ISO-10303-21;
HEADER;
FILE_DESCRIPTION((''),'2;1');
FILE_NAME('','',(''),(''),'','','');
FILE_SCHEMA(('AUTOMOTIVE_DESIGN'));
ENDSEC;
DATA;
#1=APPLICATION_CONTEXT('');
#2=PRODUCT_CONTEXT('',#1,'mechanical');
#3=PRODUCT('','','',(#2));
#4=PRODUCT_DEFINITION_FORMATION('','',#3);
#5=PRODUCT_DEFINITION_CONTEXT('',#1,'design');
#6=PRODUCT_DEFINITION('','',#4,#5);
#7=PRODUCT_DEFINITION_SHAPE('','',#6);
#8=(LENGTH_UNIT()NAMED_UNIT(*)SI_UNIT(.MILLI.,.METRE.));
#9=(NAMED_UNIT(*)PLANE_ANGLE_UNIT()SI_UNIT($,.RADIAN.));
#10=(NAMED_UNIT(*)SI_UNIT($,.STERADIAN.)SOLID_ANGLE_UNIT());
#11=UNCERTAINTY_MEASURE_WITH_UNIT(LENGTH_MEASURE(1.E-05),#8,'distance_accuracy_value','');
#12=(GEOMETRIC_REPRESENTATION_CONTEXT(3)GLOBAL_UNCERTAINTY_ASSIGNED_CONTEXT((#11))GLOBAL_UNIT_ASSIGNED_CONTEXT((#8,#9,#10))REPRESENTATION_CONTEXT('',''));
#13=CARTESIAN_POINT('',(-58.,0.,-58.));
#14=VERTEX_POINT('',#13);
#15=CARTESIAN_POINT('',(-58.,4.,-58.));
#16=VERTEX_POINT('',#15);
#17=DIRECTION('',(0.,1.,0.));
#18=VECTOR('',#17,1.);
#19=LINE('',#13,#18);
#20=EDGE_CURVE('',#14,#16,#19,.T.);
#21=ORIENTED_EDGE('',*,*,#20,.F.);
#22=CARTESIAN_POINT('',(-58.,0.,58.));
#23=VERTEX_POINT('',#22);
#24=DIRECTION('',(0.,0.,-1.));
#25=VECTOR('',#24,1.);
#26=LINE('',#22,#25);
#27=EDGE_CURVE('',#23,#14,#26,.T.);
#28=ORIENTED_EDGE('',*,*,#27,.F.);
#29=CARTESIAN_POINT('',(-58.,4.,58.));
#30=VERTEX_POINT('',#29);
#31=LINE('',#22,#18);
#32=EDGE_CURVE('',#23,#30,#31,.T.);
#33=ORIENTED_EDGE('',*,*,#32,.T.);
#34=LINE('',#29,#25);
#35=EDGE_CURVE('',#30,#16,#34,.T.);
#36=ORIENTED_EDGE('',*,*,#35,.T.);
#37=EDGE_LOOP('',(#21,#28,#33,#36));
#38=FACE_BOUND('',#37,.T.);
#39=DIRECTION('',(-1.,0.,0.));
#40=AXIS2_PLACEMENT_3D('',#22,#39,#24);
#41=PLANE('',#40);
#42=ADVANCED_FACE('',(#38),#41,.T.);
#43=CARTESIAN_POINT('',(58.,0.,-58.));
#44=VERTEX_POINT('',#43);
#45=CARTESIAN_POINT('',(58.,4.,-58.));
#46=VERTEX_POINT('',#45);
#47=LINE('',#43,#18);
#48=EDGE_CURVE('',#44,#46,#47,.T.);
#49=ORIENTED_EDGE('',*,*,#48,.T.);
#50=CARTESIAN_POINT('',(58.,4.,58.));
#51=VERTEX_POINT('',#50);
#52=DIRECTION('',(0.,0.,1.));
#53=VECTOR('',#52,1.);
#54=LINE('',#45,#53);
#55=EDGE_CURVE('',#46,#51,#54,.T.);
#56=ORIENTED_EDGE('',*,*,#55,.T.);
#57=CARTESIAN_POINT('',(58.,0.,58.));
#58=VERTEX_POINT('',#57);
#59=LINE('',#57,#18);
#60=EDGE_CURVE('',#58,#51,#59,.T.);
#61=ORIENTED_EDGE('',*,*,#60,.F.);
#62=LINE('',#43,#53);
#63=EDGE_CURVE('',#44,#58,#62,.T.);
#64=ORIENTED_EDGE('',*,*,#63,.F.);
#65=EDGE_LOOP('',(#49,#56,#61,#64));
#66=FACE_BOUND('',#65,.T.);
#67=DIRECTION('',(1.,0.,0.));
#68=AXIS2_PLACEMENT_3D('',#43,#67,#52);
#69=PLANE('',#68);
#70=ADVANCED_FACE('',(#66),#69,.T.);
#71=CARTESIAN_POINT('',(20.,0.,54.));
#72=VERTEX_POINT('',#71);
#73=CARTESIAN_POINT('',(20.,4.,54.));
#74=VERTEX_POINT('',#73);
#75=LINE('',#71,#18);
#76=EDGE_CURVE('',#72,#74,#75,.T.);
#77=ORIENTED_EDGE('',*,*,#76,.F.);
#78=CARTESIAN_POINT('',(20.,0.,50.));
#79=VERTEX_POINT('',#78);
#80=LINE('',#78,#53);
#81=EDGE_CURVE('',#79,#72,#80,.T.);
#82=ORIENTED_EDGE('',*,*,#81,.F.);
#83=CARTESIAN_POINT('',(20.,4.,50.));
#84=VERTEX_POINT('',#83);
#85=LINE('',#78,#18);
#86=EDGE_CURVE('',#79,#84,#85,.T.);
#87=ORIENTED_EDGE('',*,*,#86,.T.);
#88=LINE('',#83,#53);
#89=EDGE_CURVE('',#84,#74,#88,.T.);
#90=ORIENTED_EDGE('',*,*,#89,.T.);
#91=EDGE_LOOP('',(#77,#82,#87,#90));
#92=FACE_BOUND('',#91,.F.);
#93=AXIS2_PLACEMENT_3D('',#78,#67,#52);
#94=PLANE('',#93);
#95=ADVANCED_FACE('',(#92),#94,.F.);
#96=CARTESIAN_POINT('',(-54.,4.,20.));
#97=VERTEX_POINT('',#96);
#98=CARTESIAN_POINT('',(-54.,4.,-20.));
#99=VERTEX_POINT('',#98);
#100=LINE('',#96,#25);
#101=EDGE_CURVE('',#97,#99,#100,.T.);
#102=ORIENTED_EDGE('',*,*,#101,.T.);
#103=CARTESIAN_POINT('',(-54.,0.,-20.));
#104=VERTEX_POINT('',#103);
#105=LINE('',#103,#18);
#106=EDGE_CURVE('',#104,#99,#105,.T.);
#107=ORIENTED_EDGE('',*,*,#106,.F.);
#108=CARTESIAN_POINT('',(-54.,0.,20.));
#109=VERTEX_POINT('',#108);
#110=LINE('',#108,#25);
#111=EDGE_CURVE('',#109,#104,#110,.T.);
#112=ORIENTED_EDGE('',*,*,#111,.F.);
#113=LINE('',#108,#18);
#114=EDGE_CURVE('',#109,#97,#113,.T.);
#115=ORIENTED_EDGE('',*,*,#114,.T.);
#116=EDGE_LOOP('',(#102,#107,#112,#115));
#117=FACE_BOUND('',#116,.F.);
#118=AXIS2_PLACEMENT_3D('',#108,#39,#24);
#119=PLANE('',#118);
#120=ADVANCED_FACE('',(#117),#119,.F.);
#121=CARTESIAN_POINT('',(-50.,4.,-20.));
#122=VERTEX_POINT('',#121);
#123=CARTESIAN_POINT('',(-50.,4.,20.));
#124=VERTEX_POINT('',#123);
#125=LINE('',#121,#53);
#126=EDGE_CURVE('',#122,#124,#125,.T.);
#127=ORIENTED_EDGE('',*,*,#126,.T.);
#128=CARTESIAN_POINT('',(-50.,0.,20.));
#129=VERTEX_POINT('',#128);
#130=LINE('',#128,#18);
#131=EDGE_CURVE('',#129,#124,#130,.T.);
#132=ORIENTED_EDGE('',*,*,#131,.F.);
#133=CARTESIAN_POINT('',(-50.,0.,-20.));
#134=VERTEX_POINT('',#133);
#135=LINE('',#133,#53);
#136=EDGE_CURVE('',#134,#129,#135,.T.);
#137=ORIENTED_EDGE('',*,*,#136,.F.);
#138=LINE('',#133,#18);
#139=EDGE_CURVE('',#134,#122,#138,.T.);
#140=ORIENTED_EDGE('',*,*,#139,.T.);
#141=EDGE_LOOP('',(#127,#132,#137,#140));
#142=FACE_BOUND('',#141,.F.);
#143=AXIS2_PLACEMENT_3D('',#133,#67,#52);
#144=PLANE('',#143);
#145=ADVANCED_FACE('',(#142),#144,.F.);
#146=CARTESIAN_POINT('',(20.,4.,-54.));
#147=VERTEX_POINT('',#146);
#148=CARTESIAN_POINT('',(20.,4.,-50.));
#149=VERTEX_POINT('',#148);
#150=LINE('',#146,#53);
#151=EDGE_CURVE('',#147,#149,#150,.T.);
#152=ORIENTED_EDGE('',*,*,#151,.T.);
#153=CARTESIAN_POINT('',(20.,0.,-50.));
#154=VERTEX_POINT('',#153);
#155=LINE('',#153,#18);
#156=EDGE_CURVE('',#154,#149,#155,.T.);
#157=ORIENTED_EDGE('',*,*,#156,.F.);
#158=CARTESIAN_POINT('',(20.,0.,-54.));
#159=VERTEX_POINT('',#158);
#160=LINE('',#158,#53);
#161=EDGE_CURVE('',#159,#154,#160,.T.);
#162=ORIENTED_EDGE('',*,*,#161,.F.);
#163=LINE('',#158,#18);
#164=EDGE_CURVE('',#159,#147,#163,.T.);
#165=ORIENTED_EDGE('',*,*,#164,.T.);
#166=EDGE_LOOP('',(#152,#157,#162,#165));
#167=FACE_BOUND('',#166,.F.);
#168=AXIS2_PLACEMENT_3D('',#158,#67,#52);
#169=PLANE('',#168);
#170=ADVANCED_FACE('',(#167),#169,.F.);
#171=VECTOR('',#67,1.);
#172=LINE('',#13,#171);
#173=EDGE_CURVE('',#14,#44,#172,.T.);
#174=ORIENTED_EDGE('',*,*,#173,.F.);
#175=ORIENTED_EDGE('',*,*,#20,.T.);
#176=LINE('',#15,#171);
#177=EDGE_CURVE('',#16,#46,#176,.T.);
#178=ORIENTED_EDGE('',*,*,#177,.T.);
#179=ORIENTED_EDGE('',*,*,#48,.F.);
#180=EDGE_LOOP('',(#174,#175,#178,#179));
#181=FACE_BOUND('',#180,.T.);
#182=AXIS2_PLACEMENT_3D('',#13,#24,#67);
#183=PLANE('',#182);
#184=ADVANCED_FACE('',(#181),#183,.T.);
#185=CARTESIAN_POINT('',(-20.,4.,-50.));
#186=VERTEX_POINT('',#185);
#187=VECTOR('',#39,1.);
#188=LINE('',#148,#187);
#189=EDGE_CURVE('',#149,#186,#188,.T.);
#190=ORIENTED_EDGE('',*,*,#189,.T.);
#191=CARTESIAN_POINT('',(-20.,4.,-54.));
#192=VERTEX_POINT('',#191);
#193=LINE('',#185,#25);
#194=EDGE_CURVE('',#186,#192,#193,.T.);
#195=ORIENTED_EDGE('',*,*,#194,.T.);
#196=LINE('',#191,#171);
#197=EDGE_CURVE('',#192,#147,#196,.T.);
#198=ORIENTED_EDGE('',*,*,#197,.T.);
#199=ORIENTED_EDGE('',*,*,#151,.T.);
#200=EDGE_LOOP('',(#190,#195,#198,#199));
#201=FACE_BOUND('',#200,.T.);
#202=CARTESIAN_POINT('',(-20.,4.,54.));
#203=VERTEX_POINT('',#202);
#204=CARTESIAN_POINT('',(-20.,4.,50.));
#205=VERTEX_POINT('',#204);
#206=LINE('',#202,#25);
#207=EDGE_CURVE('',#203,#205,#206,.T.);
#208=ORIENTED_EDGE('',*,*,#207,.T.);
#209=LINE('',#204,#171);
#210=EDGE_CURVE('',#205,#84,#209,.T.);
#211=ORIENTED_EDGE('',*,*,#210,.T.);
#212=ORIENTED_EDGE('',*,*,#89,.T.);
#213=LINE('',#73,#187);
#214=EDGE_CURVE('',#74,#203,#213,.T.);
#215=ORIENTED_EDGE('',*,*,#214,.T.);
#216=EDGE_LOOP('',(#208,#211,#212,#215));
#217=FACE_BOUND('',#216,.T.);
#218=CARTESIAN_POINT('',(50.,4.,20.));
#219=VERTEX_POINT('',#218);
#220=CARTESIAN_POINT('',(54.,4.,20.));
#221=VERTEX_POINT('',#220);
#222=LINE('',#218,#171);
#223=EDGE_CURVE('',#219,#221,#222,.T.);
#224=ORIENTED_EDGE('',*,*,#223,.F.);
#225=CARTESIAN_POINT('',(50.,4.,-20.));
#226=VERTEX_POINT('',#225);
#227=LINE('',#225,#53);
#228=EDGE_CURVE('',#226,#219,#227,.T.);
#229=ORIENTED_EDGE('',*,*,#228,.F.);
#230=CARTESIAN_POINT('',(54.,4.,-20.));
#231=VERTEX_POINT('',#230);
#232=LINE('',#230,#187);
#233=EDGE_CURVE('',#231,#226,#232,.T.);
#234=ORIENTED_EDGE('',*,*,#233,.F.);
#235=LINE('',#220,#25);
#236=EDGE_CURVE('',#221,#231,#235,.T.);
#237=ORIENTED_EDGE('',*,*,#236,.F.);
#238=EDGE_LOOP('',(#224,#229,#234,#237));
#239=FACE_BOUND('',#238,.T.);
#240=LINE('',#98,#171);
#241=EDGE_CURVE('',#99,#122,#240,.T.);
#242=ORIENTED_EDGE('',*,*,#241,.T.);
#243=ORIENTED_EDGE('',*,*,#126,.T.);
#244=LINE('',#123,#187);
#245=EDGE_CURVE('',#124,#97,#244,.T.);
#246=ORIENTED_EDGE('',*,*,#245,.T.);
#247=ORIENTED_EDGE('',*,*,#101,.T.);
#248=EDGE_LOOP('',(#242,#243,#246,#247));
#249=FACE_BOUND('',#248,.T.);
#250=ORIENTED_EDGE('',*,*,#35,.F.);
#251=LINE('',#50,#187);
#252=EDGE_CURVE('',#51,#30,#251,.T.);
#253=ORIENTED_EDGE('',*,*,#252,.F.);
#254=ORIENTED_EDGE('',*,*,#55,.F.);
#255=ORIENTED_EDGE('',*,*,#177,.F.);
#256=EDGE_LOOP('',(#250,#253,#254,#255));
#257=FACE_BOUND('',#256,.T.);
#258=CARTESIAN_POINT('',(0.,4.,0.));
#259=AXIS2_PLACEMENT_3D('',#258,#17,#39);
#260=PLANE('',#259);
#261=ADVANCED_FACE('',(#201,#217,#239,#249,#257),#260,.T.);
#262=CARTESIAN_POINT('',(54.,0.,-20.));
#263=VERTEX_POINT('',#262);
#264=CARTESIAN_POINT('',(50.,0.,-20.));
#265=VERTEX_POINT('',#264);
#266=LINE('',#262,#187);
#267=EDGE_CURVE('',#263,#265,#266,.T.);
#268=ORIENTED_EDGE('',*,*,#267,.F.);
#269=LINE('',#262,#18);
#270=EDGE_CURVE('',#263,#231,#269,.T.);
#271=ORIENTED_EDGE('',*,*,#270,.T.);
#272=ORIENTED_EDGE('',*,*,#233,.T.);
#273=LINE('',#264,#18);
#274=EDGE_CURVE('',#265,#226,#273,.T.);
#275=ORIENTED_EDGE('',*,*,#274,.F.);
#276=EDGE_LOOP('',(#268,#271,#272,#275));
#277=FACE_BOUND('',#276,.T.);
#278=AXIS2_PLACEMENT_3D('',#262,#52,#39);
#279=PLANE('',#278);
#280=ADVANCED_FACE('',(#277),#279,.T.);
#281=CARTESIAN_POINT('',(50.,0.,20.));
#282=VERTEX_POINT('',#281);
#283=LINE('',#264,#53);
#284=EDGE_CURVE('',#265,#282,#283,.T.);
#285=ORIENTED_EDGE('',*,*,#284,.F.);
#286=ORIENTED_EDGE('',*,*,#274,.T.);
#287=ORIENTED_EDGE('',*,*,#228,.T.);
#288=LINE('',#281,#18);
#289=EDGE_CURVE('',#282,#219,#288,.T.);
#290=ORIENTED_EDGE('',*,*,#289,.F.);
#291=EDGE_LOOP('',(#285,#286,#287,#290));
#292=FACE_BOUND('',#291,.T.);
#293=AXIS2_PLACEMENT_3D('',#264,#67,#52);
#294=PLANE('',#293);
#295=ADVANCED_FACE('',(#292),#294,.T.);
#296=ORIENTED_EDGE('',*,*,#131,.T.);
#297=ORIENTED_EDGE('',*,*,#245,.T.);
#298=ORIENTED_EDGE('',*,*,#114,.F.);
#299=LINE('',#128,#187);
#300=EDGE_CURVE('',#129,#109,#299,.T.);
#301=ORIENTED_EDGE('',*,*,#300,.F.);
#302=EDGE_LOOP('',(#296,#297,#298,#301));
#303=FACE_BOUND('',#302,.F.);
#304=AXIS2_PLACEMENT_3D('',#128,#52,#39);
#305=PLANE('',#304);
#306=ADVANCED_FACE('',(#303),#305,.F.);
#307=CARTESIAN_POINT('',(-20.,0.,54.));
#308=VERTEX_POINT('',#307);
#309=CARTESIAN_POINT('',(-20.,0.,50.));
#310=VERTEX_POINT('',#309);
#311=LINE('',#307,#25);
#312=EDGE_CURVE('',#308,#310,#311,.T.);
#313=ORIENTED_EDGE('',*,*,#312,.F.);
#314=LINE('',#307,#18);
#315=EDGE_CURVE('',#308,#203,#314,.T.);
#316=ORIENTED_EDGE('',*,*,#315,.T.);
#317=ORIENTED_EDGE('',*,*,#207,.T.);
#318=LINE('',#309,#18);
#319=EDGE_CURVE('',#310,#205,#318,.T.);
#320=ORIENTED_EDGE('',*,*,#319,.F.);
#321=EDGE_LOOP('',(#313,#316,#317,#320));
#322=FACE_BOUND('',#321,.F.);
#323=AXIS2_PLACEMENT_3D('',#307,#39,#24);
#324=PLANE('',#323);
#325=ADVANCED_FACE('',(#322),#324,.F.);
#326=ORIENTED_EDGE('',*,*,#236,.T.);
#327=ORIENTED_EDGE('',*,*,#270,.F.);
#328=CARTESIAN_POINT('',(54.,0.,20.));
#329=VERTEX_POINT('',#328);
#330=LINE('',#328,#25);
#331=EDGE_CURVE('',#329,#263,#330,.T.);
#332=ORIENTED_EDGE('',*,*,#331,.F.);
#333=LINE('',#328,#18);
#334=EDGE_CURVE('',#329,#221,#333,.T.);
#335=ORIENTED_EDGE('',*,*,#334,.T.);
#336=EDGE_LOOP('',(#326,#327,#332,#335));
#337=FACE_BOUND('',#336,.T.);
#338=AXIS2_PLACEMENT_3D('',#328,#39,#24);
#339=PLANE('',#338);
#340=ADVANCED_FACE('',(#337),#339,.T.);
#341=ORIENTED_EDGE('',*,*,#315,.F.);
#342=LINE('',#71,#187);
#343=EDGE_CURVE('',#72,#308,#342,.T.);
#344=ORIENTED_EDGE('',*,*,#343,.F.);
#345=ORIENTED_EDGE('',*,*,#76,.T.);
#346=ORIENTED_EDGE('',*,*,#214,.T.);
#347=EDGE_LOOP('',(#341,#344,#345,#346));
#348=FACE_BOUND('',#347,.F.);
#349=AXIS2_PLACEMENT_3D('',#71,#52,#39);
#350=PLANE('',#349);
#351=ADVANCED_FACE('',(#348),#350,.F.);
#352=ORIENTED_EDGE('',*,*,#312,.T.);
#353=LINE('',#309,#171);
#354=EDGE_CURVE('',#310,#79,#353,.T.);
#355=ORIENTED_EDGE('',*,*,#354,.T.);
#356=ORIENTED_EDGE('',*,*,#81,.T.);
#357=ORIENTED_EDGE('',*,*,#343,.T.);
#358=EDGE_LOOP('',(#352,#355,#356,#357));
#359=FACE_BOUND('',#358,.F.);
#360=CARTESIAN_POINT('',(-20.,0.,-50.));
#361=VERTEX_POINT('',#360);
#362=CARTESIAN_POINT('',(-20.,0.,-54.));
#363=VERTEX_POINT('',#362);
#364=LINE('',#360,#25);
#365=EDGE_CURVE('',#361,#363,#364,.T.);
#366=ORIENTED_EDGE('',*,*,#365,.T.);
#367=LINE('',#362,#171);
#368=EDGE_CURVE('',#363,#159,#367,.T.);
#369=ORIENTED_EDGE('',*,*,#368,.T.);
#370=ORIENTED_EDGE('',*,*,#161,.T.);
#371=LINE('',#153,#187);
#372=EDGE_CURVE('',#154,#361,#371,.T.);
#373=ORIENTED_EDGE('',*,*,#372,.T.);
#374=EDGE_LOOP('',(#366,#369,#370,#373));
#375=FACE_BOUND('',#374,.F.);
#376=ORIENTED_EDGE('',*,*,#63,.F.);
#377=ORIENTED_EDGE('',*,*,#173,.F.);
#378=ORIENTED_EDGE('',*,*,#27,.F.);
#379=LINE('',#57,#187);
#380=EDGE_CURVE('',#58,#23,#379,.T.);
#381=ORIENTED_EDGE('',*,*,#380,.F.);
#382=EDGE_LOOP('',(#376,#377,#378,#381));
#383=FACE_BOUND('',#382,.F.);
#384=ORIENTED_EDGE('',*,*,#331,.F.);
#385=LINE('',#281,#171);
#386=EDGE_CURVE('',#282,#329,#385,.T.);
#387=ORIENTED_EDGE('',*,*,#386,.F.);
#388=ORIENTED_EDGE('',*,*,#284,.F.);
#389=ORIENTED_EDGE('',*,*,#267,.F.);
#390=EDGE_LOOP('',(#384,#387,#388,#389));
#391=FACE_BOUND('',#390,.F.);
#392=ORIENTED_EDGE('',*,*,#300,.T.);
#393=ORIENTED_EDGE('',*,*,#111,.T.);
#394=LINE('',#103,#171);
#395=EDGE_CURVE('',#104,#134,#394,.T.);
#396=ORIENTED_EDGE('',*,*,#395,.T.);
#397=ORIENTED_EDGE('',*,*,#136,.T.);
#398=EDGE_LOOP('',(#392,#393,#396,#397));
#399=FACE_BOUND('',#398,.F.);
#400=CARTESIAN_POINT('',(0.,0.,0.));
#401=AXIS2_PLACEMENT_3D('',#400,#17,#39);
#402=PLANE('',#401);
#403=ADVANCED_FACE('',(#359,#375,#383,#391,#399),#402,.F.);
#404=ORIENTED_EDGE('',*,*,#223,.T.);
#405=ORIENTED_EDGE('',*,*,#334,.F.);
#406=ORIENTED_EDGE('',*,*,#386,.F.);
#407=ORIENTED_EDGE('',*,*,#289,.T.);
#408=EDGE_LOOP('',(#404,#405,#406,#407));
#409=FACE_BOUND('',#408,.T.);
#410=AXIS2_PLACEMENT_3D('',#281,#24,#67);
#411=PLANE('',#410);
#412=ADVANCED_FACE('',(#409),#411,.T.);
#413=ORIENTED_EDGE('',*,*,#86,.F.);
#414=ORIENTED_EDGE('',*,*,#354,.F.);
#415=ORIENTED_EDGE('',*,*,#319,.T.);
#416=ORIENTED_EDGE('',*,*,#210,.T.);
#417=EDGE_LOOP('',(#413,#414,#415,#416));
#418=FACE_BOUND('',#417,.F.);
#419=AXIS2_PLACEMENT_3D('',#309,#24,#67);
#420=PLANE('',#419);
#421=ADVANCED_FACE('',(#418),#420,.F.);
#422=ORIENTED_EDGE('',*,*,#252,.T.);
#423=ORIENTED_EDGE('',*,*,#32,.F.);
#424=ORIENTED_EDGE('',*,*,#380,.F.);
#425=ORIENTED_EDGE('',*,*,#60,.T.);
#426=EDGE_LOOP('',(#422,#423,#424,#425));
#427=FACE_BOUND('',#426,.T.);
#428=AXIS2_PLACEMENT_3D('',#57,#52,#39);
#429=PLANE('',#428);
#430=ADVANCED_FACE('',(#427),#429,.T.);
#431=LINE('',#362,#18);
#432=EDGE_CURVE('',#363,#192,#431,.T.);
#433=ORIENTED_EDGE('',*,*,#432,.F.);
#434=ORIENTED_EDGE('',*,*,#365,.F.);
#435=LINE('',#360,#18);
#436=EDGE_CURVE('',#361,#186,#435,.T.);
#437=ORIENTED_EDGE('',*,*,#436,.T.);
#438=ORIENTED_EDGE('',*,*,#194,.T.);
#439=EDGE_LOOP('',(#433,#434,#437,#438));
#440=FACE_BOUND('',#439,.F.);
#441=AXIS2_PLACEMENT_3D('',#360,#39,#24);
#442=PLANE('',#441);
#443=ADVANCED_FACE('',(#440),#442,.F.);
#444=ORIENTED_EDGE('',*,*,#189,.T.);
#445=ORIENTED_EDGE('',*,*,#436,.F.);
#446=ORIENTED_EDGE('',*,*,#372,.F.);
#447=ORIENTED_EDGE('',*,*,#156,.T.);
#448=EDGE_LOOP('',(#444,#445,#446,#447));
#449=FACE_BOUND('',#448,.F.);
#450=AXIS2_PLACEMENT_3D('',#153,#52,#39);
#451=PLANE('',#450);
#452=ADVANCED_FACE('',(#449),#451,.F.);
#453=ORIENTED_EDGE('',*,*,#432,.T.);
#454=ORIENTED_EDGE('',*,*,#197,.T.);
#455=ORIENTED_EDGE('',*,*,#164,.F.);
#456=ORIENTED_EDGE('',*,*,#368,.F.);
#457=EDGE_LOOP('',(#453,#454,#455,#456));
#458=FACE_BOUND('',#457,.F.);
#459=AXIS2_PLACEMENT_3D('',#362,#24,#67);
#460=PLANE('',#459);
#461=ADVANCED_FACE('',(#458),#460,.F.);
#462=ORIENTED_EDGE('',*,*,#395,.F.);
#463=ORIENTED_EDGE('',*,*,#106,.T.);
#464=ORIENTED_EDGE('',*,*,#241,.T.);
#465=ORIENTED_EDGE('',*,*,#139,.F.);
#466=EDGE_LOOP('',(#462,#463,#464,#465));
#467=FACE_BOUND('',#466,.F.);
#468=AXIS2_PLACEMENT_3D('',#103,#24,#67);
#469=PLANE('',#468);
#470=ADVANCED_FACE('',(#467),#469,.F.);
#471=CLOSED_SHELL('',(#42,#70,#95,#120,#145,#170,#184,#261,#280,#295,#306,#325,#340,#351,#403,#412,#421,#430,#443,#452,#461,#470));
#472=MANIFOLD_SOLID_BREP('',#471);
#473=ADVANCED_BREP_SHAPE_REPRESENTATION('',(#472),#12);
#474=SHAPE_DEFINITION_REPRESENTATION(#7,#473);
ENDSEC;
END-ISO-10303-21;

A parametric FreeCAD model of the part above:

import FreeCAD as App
import Part
import Sketcher

doc = App.newDocument("Part")
body = doc.addObject("PartDesign::Body", "Body")

# Sketch on XZ plane
sketch1 = doc.addObject("Sketcher::SketchObject", "Sketch")
body.addObject(sketch1)
sketch1.AttachmentSupport = (doc.XZ_Plane, [""])
sketch1.MapMode = "FlatFace"
sketch1.addGeometry([
    Part.LineSegment(App.Vector(58, -58, 0), App.Vector(-58, -58, 0)),  # 0
    Part.LineSegment(App.Vector(-58, -58, 0), App.Vector(-58, 58, 0)),  # 1
    Part.LineSegment(App.Vector(-58, 58, 0), App.Vector(58, 58, 0)),  # 2
    Part.LineSegment(App.Vector(58, 58, 0), App.Vector(58, -58, 0)),  # 3
    Part.LineSegment(App.Vector(20, -54, 0), App.Vector(20, -50, 0)),  # 4
    Part.LineSegment(App.Vector(20, -50, 0), App.Vector(-20, -50, 0)),  # 5
    Part.LineSegment(App.Vector(-20, -50, 0), App.Vector(-20, -54, 0)),  # 6
    Part.LineSegment(App.Vector(-20, -54, 0), App.Vector(20, -54, 0)),  # 7
    Part.LineSegment(App.Vector(54, 20, 0), App.Vector(50, 20, 0)),  # 8
    Part.LineSegment(App.Vector(50, 20, 0), App.Vector(50, -20, 0)),  # 9
    Part.LineSegment(App.Vector(50, -20, 0), App.Vector(54, -20, 0)),  # 10
    Part.LineSegment(App.Vector(54, -20, 0), App.Vector(54, 20, 0)),  # 11
    Part.LineSegment(App.Vector(-54, 20, 0), App.Vector(-54, -20, 0)),  # 12
    Part.LineSegment(App.Vector(-54, -20, 0), App.Vector(-50, -20, 0)),  # 13
    Part.LineSegment(App.Vector(-50, -20, 0), App.Vector(-50, 20, 0)),  # 14
    Part.LineSegment(App.Vector(-50, 20, 0), App.Vector(-54, 20, 0)),  # 15
    Part.LineSegment(App.Vector(-20, 54, 0), App.Vector(-20, 50, 0)),  # 16
    Part.LineSegment(App.Vector(-20, 50, 0), App.Vector(20, 50, 0)),  # 17
    Part.LineSegment(App.Vector(20, 50, 0), App.Vector(20, 54, 0)),  # 18
    Part.LineSegment(App.Vector(20, 54, 0), App.Vector(-20, 54, 0)),  # 19
], False)
sketch1.addConstraint([
    Sketcher.Constraint("Coincident", 0, 2, 1, 1),
    Sketcher.Constraint("Coincident", 1, 2, 2, 1),
    Sketcher.Constraint("Coincident", 2, 2, 3, 1),
    Sketcher.Constraint("Coincident", 3, 2, 0, 1),
    Sketcher.Constraint("Coincident", 4, 2, 5, 1),
    Sketcher.Constraint("Coincident", 5, 2, 6, 1),
    Sketcher.Constraint("Coincident", 6, 2, 7, 1),
    Sketcher.Constraint("Coincident", 7, 2, 4, 1),
    Sketcher.Constraint("Coincident", 8, 2, 9, 1),
    Sketcher.Constraint("Coincident", 9, 2, 10, 1),
    Sketcher.Constraint("Coincident", 10, 2, 11, 1),
    Sketcher.Constraint("Coincident", 11, 2, 8, 1),
    Sketcher.Constraint("Coincident", 12, 2, 13, 1),
    Sketcher.Constraint("Coincident", 13, 2, 14, 1),
    Sketcher.Constraint("Coincident", 14, 2, 15, 1),
    Sketcher.Constraint("Coincident", 15, 2, 12, 1),
    Sketcher.Constraint("Coincident", 16, 2, 17, 1),
    Sketcher.Constraint("Coincident", 17, 2, 18, 1),
    Sketcher.Constraint("Coincident", 18, 2, 19, 1),
    Sketcher.Constraint("Coincident", 19, 2, 16, 1),
    Sketcher.Constraint("Horizontal", 0),
    Sketcher.Constraint("Vertical", 1),
    Sketcher.Constraint("Horizontal", 2),
    Sketcher.Constraint("Vertical", 3),
    Sketcher.Constraint("Vertical", 4),
    Sketcher.Constraint("Horizontal", 5),
    Sketcher.Constraint("Vertical", 6),
    Sketcher.Constraint("Horizontal", 7),
    Sketcher.Constraint("Horizontal", 8),
    Sketcher.Constraint("Vertical", 9),
    Sketcher.Constraint("Horizontal", 10),
    Sketcher.Constraint("Vertical", 11),
    Sketcher.Constraint("Vertical", 12),
    Sketcher.Constraint("Horizontal", 13),
    Sketcher.Constraint("Vertical", 14),
    Sketcher.Constraint("Horizontal", 15),
    Sketcher.Constraint("Vertical", 16),
    Sketcher.Constraint("Horizontal", 17),
    Sketcher.Constraint("Vertical", 18),
    Sketcher.Constraint("Horizontal", 19),
    Sketcher.Constraint("Symmetric", 0, 2, 2, 2, -1, 1),
    Sketcher.Constraint("Symmetric", 11, 2, 12, 2, -1, 1),
    Sketcher.Constraint("Symmetric", 9, 2, 14, 2, -1, 1),
    Sketcher.Constraint("Symmetric", 4, 2, 16, 2, -1, 1),
    Sketcher.Constraint("Symmetric", 6, 2, 18, 2, -1, 1),
    Sketcher.Constraint("Horizontal", 10, 2, 12, 2),
    Sketcher.Constraint("Vertical", 6, 2, 16, 2),
    Sketcher.Constraint("Equal", 2, 1),
    Sketcher.Constraint("Equal", 15, 4),
    Sketcher.Constraint("Equal", 19, 9),
    Sketcher.Constraint("DistanceX", 5, 2, 5, 1, 40.0),
    Sketcher.Constraint("DistanceX", 8, 2, 8, 1, 4.0),
    Sketcher.Constraint("DistanceY", 0, 2, 6, 2, 4.0),
    Sketcher.Constraint("DistanceX", 10, 2, 3, 2, 4.0),
    Sketcher.Constraint("DistanceX", 0, 2, 0, 1, 116.0),
])
pad1 = doc.addObject("PartDesign::Pad", "Pad")
body.addObject(pad1)
pad1.Profile = sketch1
pad1.Length = 4
pad1.Reversed = True

doc.recompute()
